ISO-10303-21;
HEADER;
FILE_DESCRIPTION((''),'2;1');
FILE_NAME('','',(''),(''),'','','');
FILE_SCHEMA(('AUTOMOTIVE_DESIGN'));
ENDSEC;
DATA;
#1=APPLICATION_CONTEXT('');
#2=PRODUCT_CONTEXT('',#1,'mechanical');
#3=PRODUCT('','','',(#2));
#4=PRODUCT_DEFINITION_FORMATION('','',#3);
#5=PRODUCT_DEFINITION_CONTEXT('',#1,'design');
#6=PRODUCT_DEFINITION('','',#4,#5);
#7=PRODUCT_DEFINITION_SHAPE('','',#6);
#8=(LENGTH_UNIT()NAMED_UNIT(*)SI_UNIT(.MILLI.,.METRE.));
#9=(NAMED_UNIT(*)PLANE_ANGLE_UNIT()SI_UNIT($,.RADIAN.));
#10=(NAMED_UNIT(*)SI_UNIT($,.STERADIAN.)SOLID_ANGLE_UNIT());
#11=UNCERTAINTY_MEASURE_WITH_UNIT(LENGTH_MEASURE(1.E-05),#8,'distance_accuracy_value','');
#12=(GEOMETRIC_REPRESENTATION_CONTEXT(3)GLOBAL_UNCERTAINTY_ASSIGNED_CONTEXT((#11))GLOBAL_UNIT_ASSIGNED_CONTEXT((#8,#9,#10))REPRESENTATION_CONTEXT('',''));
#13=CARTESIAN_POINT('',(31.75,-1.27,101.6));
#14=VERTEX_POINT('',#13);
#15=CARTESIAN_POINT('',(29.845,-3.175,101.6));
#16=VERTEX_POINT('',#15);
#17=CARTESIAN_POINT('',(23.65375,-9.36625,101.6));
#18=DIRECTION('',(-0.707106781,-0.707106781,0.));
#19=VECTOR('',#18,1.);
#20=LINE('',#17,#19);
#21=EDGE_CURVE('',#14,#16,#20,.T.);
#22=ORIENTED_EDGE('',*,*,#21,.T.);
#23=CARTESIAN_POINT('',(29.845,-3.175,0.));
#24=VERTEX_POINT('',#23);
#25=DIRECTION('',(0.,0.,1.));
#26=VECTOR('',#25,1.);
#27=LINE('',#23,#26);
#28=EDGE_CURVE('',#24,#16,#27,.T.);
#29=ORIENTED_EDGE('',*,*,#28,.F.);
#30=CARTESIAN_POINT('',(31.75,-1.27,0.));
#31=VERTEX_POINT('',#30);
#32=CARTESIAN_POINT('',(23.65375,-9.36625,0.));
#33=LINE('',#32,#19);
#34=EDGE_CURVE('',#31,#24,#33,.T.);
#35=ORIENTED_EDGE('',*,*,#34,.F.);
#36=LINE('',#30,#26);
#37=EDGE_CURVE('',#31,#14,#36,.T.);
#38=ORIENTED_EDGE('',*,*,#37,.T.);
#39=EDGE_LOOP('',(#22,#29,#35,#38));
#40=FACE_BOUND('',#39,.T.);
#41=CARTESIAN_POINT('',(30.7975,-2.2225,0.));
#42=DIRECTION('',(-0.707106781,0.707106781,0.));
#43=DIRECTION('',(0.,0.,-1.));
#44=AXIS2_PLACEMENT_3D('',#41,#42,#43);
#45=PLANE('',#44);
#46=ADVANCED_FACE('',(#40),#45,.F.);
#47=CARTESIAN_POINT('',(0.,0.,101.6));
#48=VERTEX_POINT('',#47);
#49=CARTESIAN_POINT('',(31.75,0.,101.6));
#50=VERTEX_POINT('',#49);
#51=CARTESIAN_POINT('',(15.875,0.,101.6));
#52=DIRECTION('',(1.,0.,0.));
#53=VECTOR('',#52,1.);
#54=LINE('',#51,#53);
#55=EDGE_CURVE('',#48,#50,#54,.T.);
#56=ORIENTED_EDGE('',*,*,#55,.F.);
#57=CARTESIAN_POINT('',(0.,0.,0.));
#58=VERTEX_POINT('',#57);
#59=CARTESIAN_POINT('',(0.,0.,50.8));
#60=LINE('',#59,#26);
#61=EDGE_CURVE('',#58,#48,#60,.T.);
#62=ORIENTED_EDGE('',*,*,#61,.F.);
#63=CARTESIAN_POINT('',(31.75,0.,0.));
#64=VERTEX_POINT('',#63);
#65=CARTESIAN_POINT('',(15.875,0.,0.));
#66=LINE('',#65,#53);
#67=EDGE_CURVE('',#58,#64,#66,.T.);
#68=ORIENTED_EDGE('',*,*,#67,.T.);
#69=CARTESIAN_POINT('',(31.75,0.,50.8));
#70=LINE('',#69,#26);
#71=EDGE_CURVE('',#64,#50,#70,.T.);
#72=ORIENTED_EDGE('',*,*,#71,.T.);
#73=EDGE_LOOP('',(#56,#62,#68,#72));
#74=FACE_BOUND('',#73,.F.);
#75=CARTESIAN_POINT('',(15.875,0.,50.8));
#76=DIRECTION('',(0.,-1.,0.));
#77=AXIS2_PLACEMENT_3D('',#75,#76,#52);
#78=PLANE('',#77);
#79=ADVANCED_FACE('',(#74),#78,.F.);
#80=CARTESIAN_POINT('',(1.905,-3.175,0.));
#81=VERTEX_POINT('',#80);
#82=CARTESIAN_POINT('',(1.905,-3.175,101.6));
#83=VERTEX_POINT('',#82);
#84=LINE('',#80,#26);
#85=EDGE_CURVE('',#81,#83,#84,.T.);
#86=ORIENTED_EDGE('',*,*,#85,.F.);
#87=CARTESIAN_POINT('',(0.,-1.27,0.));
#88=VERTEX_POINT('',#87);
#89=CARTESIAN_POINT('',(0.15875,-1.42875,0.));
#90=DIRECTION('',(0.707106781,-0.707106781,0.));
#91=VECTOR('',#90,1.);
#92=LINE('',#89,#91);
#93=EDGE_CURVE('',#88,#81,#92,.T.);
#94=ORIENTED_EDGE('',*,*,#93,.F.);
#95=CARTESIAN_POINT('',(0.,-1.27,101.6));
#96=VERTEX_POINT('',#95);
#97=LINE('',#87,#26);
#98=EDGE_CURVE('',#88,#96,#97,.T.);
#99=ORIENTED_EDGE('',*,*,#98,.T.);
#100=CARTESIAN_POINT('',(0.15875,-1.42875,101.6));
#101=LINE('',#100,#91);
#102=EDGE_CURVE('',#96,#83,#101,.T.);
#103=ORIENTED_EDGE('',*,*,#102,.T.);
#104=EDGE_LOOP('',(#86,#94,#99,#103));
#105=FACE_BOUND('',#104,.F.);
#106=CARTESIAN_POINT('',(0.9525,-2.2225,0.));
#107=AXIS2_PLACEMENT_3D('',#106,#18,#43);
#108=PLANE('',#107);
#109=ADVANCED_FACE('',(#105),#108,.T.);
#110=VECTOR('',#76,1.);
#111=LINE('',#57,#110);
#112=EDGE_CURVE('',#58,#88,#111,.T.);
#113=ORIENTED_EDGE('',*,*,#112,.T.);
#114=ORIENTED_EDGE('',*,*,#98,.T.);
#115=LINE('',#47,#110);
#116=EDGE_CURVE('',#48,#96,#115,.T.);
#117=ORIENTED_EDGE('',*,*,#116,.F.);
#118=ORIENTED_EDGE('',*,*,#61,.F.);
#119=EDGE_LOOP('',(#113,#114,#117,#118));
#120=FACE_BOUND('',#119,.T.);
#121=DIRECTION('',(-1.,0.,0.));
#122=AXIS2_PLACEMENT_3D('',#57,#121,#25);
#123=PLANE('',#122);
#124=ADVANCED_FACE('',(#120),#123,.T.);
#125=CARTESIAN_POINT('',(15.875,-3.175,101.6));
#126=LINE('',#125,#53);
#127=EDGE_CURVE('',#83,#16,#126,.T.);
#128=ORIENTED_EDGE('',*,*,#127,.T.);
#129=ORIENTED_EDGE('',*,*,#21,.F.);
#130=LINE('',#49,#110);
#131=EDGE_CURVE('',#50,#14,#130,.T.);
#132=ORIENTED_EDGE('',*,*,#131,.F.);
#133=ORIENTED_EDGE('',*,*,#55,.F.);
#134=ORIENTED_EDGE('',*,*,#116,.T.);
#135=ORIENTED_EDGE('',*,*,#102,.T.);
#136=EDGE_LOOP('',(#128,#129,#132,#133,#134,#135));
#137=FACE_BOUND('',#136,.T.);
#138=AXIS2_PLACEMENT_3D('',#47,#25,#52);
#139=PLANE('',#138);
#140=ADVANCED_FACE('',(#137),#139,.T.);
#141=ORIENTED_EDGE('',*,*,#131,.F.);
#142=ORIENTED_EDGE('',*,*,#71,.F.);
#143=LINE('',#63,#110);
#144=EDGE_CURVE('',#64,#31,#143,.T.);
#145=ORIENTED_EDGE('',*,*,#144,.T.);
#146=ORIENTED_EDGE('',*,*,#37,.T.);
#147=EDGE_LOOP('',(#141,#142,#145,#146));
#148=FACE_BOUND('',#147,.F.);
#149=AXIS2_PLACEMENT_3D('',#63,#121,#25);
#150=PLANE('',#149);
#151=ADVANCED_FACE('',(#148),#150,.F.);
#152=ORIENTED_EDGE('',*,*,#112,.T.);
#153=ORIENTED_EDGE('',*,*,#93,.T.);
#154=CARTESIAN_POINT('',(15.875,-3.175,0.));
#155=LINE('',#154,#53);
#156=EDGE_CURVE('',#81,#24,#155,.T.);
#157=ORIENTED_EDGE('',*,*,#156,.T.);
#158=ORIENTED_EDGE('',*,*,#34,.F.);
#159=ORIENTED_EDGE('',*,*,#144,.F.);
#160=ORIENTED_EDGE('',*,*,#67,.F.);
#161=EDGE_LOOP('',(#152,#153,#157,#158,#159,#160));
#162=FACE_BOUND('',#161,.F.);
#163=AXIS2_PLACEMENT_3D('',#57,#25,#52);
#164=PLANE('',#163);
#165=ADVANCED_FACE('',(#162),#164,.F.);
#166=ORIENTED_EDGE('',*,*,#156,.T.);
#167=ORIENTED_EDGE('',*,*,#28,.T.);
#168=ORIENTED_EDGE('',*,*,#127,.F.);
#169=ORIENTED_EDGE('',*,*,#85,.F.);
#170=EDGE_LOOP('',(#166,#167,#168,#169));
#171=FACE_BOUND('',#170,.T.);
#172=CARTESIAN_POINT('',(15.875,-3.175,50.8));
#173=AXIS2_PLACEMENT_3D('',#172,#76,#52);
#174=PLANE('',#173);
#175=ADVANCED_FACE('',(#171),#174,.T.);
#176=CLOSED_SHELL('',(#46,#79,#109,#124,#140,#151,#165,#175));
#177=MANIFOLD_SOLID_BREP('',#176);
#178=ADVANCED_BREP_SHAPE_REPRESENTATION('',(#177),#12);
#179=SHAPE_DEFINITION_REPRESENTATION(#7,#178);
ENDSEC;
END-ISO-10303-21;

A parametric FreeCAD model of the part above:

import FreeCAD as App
import Part
import Sketcher
Q = App.Units.Quantity


def edges_at(feature, points):
    """Names of the edges that pass closest to the given points."""
    edges = feature.Shape.Edges
    near = lambda p: min(range(len(edges)), key=lambda i: edges[i].distToShape(Part.Vertex(*p))[0])
    return sorted({f"Edge{near(p) + 1}" for p in points})


def add_polygon(sketch, points):
    """Adds a closed chain of lines whose ends are joined by coincident constraints."""
    first, n = sketch.GeometryCount, len(points)
    for a, b in zip(points, points[1:] + points[:1]):
        sketch.addGeometry(Part.LineSegment(App.Vector(*a, 0), App.Vector(*b, 0)), False)
    for i in range(n):
        sketch.addConstraint(Sketcher.Constraint("Coincident", first + i, 2, first + (i + 1) % n, 1))

doc = App.newDocument("Part")
body = doc.addObject("PartDesign::Body", "Body")

sketch1 = body.newObject("Sketcher::SketchObject", "Sketch")
sketch1.AttachmentSupport = (doc.getObject("XZ_Plane"), [""])
sketch1.MapMode = "FlatFace"
add_polygon(sketch1, [(0, 102), (0, 0), (32, 0), (32, 102)])
sketch1.addConstraint(Sketcher.Constraint("Vertical", 0))
sketch1.addConstraint(Sketcher.Constraint("Horizontal", 1))
sketch1.addConstraint(Sketcher.Constraint("Vertical", 2))
sketch1.addConstraint(Sketcher.Constraint("Horizontal", 3))
sketch1.addConstraint(Sketcher.Constraint("Coincident", 0, 2, -1, 1))
sketch1.addConstraint(Sketcher.Constraint("DistanceY", 0, 2, 0, 1, Q("4 in")))
sketch1.addConstraint(Sketcher.Constraint("DistanceX", 1, 1, 1, 2, Q("1.25 in")))
pad1 = body.newObject("PartDesign::Pad", "Pad")
pad1.Profile = sketch1
pad1.Length = Q("0.125 in")
doc.recompute()

chamfer = body.newObject("PartDesign::Chamfer", "Chamfer")
chamfer.Base = (pad1, edges_at(pad1, [(0, -3.175, 50.8), (31.75, -3.175, 50.8)]))
chamfer.Size = Q("0.075 in")

doc.recompute()
